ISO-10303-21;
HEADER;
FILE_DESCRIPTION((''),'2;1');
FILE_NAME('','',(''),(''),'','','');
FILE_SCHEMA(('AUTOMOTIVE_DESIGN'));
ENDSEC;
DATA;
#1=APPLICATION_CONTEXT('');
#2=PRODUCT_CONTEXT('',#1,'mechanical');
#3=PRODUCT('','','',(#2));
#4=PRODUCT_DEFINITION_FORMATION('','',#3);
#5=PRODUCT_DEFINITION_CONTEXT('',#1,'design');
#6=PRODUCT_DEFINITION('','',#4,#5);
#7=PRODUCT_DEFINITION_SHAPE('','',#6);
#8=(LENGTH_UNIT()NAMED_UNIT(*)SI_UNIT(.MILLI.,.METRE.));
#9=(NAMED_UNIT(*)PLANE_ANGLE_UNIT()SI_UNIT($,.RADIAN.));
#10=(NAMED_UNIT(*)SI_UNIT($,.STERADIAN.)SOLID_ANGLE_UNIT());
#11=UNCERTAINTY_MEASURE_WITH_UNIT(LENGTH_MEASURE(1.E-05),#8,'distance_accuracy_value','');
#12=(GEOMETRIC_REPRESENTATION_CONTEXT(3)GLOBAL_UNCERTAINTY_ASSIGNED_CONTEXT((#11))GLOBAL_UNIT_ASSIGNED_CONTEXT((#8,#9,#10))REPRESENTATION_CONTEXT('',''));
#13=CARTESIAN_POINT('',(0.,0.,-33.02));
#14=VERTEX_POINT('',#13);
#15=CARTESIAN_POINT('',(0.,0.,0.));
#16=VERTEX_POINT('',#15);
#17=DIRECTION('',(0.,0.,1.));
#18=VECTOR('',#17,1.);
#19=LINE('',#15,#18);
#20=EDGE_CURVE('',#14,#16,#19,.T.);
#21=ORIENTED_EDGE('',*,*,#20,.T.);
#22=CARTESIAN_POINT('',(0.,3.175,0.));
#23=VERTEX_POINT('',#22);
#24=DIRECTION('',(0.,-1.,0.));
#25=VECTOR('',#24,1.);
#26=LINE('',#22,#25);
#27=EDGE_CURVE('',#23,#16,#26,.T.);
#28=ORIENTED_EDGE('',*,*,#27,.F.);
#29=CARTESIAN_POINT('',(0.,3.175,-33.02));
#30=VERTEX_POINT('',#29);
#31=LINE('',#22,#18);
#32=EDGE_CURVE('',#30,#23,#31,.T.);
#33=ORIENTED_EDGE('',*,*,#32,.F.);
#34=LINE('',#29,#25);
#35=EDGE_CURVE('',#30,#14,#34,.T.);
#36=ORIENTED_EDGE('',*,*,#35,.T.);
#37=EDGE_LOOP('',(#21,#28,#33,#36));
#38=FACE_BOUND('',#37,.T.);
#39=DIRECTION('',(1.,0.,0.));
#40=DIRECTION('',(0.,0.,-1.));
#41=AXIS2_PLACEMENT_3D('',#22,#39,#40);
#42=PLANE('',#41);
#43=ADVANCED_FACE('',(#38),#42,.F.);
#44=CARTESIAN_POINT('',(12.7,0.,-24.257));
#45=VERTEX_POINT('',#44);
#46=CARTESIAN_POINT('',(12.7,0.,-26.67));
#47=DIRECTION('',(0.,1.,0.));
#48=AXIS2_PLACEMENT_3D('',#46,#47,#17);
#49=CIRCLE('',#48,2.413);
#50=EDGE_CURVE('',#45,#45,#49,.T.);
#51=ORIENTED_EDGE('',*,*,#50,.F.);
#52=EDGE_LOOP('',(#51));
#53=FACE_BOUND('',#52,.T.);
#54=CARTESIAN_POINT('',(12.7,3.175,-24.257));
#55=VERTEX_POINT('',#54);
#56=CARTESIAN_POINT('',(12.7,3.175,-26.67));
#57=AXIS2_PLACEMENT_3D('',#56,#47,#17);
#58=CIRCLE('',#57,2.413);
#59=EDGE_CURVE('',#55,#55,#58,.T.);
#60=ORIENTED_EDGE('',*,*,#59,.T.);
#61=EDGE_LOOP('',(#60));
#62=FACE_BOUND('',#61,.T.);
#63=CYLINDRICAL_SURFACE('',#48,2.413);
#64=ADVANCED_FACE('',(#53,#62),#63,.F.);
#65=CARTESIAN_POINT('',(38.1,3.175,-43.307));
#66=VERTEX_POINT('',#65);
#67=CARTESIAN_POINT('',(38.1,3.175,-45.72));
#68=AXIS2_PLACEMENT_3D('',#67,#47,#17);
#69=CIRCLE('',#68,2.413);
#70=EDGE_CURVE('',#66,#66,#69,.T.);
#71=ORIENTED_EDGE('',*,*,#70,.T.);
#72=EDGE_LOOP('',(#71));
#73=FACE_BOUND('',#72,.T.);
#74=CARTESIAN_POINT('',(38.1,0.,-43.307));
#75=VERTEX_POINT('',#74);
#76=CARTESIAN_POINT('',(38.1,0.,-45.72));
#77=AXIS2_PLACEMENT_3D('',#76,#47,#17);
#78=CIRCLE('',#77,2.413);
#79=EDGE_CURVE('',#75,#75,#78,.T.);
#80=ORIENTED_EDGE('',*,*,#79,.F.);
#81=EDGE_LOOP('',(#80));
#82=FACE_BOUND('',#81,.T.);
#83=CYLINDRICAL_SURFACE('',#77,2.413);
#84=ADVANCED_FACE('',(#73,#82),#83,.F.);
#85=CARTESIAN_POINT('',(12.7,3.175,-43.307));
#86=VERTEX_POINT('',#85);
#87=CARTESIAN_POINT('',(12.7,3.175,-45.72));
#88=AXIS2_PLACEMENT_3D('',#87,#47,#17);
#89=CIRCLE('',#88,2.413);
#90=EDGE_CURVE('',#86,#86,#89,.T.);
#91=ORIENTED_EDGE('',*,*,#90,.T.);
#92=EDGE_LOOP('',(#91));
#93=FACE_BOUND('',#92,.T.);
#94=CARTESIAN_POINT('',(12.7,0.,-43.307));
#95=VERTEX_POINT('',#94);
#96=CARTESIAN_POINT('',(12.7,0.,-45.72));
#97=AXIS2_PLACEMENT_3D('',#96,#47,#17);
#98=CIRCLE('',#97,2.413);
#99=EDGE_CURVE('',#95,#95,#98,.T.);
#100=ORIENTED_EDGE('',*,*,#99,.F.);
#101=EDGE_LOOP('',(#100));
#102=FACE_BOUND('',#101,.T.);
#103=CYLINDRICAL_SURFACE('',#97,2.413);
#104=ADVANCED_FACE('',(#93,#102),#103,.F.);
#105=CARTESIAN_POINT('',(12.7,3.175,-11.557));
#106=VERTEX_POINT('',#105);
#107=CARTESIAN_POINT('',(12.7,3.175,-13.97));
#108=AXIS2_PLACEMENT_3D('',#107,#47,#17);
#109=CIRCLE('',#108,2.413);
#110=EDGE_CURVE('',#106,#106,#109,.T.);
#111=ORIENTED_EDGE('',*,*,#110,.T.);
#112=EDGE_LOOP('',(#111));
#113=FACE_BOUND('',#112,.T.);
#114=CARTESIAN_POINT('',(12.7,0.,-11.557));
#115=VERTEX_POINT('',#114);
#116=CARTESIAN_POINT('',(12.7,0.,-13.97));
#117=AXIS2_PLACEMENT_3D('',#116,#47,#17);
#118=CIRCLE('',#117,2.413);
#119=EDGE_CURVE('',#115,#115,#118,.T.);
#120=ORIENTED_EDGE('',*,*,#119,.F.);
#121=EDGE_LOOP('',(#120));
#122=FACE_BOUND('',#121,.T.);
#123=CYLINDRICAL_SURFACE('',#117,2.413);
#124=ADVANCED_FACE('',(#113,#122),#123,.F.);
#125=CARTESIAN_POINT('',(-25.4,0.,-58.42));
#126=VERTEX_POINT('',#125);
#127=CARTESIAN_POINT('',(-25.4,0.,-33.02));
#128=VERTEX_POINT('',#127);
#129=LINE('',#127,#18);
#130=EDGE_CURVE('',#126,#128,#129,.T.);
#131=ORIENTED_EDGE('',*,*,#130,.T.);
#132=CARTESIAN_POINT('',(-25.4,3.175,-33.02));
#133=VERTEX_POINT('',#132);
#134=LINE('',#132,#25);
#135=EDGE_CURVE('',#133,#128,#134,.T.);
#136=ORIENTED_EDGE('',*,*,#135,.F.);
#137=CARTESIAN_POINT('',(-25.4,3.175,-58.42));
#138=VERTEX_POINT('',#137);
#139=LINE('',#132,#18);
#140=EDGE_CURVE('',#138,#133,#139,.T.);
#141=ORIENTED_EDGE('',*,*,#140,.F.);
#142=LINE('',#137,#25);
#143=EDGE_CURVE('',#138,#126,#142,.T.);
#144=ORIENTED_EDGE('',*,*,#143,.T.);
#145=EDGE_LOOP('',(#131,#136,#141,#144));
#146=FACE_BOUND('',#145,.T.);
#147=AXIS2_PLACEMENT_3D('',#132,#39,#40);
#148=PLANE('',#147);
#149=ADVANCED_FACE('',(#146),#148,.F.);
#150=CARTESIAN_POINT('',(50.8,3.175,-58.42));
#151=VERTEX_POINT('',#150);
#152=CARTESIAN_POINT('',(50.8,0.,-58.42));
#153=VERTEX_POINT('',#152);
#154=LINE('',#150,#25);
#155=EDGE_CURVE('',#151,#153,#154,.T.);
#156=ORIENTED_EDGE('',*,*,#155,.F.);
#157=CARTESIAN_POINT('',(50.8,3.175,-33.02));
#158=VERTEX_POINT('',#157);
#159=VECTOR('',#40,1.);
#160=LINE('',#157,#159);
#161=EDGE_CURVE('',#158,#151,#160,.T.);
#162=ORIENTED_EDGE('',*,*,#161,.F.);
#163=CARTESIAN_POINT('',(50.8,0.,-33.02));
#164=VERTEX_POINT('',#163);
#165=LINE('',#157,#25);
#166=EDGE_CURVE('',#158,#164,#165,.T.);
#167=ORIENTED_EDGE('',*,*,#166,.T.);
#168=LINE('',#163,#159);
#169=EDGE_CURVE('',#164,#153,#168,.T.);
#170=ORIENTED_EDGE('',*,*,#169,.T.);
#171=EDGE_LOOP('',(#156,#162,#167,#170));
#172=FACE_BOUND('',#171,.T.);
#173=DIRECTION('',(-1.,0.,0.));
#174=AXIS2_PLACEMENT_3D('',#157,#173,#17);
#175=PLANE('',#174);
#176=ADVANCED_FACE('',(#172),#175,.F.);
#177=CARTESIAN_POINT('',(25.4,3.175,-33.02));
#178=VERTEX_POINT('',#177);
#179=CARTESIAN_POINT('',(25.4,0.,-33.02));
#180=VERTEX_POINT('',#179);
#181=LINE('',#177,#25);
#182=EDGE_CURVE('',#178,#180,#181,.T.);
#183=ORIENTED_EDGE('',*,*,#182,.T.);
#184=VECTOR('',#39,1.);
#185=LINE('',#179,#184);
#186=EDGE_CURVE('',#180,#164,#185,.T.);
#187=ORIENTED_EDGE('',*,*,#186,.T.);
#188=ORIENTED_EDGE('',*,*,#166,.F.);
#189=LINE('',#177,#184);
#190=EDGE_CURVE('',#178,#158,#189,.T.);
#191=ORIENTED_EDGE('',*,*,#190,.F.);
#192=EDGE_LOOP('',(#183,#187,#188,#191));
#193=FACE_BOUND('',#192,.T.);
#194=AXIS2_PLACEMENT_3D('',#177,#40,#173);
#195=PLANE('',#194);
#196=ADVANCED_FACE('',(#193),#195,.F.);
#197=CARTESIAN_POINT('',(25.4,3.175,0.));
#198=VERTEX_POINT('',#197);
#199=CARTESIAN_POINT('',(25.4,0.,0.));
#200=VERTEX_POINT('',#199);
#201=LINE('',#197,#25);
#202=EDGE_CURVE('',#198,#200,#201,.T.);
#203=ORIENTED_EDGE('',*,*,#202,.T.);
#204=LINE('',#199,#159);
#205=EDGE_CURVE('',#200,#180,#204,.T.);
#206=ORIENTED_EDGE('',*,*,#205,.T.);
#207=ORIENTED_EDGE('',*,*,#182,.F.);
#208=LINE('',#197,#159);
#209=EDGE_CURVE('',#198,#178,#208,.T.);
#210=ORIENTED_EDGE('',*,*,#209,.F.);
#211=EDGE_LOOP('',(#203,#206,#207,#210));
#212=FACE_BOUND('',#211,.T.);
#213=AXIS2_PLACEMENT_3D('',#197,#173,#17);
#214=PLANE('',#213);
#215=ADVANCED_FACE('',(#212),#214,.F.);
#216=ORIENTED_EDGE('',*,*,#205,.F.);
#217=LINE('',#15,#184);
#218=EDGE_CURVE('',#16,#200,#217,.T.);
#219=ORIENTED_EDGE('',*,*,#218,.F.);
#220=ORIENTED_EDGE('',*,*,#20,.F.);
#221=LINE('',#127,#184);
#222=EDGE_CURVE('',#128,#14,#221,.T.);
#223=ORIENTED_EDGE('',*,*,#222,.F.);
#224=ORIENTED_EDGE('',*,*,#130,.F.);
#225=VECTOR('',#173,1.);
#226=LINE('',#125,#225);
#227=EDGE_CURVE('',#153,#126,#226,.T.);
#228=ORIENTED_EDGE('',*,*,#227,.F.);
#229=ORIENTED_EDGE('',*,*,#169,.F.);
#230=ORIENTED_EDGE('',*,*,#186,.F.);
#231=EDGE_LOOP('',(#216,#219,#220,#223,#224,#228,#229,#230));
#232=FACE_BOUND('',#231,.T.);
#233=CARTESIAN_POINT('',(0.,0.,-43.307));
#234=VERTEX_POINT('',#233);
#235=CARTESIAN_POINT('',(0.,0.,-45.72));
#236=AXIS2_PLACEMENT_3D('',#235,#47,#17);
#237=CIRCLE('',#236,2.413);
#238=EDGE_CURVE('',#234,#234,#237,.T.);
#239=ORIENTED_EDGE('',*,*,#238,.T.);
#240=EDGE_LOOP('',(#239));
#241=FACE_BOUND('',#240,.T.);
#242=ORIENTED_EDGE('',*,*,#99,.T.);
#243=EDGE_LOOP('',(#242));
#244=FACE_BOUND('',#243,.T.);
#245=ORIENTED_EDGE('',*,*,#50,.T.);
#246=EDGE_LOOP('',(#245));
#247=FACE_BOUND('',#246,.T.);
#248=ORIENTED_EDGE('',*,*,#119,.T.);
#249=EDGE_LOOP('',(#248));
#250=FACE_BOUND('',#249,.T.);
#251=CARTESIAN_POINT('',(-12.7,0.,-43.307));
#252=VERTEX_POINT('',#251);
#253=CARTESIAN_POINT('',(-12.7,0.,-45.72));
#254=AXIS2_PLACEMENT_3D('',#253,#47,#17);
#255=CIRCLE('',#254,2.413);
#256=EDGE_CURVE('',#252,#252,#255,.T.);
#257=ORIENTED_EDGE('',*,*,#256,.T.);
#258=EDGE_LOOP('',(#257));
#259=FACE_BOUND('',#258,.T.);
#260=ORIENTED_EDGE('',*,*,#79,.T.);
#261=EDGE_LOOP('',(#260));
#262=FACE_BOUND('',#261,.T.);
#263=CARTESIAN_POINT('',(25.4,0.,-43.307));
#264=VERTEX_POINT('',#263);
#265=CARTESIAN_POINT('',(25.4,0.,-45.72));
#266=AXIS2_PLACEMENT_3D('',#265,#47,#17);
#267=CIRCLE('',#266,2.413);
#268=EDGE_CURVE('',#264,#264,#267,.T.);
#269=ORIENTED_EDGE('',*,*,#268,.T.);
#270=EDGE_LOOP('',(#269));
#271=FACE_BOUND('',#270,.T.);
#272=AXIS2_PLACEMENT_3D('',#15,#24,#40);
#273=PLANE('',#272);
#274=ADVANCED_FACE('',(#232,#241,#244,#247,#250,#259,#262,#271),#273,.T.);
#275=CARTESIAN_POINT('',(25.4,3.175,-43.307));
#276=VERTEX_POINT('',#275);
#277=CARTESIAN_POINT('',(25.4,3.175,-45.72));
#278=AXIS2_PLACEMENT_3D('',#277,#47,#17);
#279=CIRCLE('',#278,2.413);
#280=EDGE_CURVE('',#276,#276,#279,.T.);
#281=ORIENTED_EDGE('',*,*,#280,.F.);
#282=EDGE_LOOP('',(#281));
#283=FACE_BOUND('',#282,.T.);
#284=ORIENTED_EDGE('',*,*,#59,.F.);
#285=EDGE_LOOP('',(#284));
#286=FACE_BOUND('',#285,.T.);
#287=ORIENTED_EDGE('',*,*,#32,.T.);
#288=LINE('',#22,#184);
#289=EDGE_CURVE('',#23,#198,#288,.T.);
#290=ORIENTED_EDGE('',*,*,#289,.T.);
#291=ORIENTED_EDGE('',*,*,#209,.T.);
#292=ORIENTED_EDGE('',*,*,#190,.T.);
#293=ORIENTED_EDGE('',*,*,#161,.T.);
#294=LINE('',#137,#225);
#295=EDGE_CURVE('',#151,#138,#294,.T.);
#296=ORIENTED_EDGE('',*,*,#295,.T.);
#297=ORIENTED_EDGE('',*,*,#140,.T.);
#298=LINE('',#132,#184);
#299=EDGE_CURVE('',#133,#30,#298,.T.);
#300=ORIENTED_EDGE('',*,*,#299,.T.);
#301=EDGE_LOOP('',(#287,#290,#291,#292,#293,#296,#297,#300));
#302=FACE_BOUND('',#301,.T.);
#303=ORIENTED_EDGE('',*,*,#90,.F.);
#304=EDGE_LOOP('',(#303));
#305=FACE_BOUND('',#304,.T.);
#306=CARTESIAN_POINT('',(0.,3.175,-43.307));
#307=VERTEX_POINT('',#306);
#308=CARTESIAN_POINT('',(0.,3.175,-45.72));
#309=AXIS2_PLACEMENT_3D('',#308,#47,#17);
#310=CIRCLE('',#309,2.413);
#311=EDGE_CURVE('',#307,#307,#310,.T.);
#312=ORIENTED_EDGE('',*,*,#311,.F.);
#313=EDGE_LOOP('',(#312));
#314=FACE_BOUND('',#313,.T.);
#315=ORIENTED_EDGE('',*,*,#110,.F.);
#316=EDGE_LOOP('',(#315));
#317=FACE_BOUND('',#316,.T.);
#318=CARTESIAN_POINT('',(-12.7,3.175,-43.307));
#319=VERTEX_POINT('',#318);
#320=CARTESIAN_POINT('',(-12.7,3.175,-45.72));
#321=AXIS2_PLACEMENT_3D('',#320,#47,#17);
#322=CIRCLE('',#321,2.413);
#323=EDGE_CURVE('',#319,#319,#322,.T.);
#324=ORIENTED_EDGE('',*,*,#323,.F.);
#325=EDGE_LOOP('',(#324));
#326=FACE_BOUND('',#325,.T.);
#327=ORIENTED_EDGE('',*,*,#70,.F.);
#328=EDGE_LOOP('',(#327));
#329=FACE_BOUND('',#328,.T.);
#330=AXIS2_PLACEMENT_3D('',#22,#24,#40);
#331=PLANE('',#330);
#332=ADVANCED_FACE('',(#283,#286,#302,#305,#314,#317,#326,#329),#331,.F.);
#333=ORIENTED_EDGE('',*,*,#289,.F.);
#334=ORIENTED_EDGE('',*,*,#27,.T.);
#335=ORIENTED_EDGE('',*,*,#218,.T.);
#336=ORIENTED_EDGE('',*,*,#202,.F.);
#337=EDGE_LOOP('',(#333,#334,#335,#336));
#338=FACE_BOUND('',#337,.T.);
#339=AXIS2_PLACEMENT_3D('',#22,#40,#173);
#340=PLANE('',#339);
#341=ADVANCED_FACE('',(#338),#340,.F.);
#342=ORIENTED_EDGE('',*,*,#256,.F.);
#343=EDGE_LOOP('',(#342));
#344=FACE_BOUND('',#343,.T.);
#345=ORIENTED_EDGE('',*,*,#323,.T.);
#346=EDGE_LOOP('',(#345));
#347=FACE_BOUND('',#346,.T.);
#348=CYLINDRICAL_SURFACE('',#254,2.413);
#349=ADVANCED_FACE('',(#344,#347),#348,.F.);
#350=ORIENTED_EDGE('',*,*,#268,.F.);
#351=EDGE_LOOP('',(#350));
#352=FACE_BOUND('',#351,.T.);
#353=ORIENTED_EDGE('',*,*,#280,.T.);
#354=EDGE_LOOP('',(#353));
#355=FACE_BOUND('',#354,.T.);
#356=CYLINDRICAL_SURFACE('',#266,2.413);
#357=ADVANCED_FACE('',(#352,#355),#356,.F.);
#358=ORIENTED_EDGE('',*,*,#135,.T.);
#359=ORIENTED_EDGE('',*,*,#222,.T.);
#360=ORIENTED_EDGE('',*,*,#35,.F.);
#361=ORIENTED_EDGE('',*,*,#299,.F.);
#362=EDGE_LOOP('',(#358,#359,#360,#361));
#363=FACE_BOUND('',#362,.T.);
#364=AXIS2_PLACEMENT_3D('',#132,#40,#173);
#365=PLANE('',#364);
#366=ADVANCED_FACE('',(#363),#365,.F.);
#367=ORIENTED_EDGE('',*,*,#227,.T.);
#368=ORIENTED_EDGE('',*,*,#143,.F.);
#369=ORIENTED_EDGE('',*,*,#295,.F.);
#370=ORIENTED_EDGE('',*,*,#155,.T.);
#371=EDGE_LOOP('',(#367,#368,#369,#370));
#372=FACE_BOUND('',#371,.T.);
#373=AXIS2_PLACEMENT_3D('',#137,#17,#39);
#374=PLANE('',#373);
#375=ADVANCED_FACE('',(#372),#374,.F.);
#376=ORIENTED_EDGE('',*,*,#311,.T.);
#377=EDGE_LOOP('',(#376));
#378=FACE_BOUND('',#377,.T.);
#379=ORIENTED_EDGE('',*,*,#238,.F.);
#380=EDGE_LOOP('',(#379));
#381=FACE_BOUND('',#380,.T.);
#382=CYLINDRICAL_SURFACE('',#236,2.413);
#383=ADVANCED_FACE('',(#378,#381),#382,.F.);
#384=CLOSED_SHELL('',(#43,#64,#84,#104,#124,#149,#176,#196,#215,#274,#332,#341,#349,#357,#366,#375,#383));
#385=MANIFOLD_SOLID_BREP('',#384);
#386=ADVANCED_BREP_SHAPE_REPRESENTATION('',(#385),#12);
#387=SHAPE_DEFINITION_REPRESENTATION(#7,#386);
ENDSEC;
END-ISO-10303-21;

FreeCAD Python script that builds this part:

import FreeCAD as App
import Part
import Sketcher
from FreeCAD import Vector
Q = App.Units.Quantity


def add_polygon(sketch, points):
    """Adds a closed chain of lines whose ends are joined by coincident constraints."""
    first, n = sketch.GeometryCount, len(points)
    for a, b in zip(points, points[1:] + points[:1]):
        sketch.addGeometry(Part.LineSegment(App.Vector(*a, 0), App.Vector(*b, 0)), False)
    for i in range(n):
        sketch.addConstraint(Sketcher.Constraint("Coincident", first + i, 2, first + (i + 1) % n, 1))

doc = App.newDocument("Part")
body = doc.addObject("PartDesign::Body", "Body")

# Sketch on XZ plane
sketch1 = doc.addObject("Sketcher::SketchObject", "Sketch")
body.addObject(sketch1)
sketch1.AttachmentSupport = (doc.XZ_Plane, [""])
sketch1.MapMode = "FlatFace"
add_polygon(sketch1, [(25.4, -33.02), (50.8, -33.02), (50.8, -58.42), (-25.4, -58.42), (-25.4, -33.02), (0, -33.02), (0, 0), (25.4, 0)])  # lines 0-7
sketch1.addConstraint(Sketcher.Constraint("Horizontal", 0))
sketch1.addConstraint(Sketcher.Constraint("Vertical", 1))
sketch1.addConstraint(Sketcher.Constraint("Horizontal", 2))
sketch1.addConstraint(Sketcher.Constraint("Vertical", 3))
sketch1.addConstraint(Sketcher.Constraint("Horizontal", 4))
sketch1.addConstraint(Sketcher.Constraint("Vertical", 5))
sketch1.addConstraint(Sketcher.Constraint("Horizontal", 6))
sketch1.addConstraint(Sketcher.Constraint("Vertical", 7))
sketch1.addConstraint(Sketcher.Constraint("Coincident", 5, 2, -1, 1))
sketch1.addConstraint(Sketcher.Constraint("Symmetric", 3, 2, 7, 2, -2))
sketch1.addConstraint(Sketcher.Constraint("Equal", 0, 4))
sketch1.addConstraint(Sketcher.Constraint("Equal", 6, 1))
sketch1.addConstraint(Sketcher.Constraint("DistanceX", 0, 1, 0, 2, Q("1 in")))
sketch1.addConstraint(Sketcher.Constraint("DistanceY", 5, 1, 5, 2, Q("1.3 in")))
pad1 = doc.addObject("PartDesign::Pad", "Pad")
body.addObject(pad1)
pad1.Profile = sketch1
pad1.Length = Q("0.125 in")
pad1.Reversed = True

# Sketch on XZ plane
sketch2 = doc.addObject("Sketcher::SketchObject", "Sketch001")
body.addObject(sketch2)
sketch2.AttachmentSupport = (doc.XZ_Plane, [""])
sketch2.MapMode = "FlatFace"
sketch2.AttachmentOffset = App.Placement(Vector(0, 0, -0.125 * 25.4), App.Rotation())
sketch2.addGeometry(Part.Circle(Vector(12.7, -13.97, 0), Vector(0, 0, 1), 2.413), False)
sketch2.addGeometry(Part.Circle(Vector(-12.7, -45.72, 0), Vector(0, 0, 1), 2.413), False)
sketch2.addGeometry(Part.Circle(Vector(12.7, -26.67, 0), Vector(0, 0, 1), 2.413), False)
sketch2.addGeometry(Part.Circle(Vector(0, -45.72, 0), Vector(0, 0, 1), 2.413), False)
sketch2.addGeometry(Part.Circle(Vector(12.7, -45.72, 0), Vector(0, 0, 1), 2.413), False)
sketch2.addGeometry(Part.Circle(Vector(25.4, -45.72, 0), Vector(0, 0, 1), 2.413), False)
sketch2.addGeometry(Part.Circle(Vector(38.1, -45.72, 0), Vector(0, 0, 1), 2.413), False)
sketch2.addConstraint(Sketcher.Constraint("Equal", 0, 1))
sketch2.addConstraint(Sketcher.Constraint("Equal", 1, 2))
sketch2.addConstraint(Sketcher.Constraint("Equal", 2, 3))
sketch2.addConstraint(Sketcher.Constraint("Equal", 3, 4))
sketch2.addConstraint(Sketcher.Constraint("Equal", 4, 5))
sketch2.addConstraint(Sketcher.Constraint("Equal", 5, 6))
sketch2.addConstraint(Sketcher.Constraint("Symmetric", 1, 3, 4, 3, -2))
sketch2.addConstraint(Sketcher.Constraint("PointOnObject", 3, 3, -2))
sketch2.addConstraint(Sketcher.Constraint("Horizontal", 1, 3, 3, 3))
sketch2.addConstraint(Sketcher.Constraint("Horizontal", 4, 3, 5, 3))
sketch2.addConstraint(Sketcher.Constraint("Horizontal", 5, 3, 6, 3))
sketch2.addConstraint(Sketcher.Constraint("Vertical", 0, 3, 2, 3))
sketch2.addConstraint(Sketcher.Constraint("Vertical", 2, 3, 4, 3))
sketch2.addConstraint(Sketcher.Constraint("Diameter", 0, Q("0.19 in")))
sketch2.addConstraint(Sketcher.Constraint("DistanceX", -1, 1, 5, 3, Q("1 in")))
sketch2.addConstraint(Sketcher.Constraint("DistanceX", 1, 3, 0, 3, Q("1 in")))
sketch2.addConstraint(Sketcher.Constraint("DistanceX", 4, 3, 6, 3, Q("1 in")))
sketch2.addConstraint(Sketcher.Constraint("DistanceY", 1, 3, -1, 1, Q("1.8 in")))
sketch2.addConstraint(Sketcher.Constraint("DistanceY", 2, 3, 0, 3, Q("0.5 in")))
sketch2.addConstraint(Sketcher.Constraint("DistanceY", 0, 3, -1, 1, Q("0.55 in")))
pocket1 = doc.addObject("PartDesign::Pocket", "Pocket")
body.addObject(pocket1)
pocket1.Profile = sketch2
pocket1.Type = "ThroughAll"
pocket1.Reversed = True

doc.recompute()
